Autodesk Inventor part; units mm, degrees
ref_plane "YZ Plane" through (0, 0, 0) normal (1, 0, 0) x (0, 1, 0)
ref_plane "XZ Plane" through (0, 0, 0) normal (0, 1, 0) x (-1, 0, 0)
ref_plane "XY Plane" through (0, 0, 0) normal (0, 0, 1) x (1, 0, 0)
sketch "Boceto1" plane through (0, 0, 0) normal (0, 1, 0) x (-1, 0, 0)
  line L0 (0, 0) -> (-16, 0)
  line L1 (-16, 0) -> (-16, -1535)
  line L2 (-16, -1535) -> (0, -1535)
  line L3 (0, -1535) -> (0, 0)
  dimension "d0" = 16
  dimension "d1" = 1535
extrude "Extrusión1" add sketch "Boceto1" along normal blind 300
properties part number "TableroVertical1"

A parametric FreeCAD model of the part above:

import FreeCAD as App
import Part
import Sketcher
from FreeCAD import Vector


def add_polygon(sketch, points):
    """Adds a closed chain of lines whose ends are joined by coincident constraints."""
    first, n = sketch.GeometryCount, len(points)
    for a, b in zip(points, points[1:] + points[:1]):
        sketch.addGeometry(Part.LineSegment(App.Vector(*a, 0), App.Vector(*b, 0)), False)
    for i in range(n):
        sketch.addConstraint(Sketcher.Constraint("Coincident", first + i, 2, first + (i + 1) % n, 1))

doc = App.newDocument("Part")
body = doc.addObject("PartDesign::Body", "Body")

# Sketch on XZ plane
sketch1 = body.newObject("Sketcher::SketchObject", "Sketch")
sketch1.AttachmentSupport = (doc.getObject("XZ_Plane"), [""])
sketch1.MapMode = "FlatFace"
add_polygon(sketch1, [(0, -1535), (0, 0), (16, 0), (16, -1535)])  # lines 0-3
sketch1.addConstraint(Sketcher.Constraint("Vertical", 0))
sketch1.addConstraint(Sketcher.Constraint("Horizontal", 1))
sketch1.addConstraint(Sketcher.Constraint("Vertical", 2))
sketch1.addConstraint(Sketcher.Constraint("Horizontal", 3))
sketch1.addConstraint(Sketcher.Constraint("Coincident", 0, 2, -1, 1))
sketch1.addConstraint(Sketcher.Constraint("DistanceX", 1, 1, 1, 2, 16.0))
sketch1.addConstraint(Sketcher.Constraint("DistanceY", 0, 1, 0, 2, 1535.0))
pad1 = body.newObject("PartDesign::Pad", "Pad")
pad1.Profile = sketch1
pad1.Length = 300
pad1.Reversed = True

doc.recompute()
